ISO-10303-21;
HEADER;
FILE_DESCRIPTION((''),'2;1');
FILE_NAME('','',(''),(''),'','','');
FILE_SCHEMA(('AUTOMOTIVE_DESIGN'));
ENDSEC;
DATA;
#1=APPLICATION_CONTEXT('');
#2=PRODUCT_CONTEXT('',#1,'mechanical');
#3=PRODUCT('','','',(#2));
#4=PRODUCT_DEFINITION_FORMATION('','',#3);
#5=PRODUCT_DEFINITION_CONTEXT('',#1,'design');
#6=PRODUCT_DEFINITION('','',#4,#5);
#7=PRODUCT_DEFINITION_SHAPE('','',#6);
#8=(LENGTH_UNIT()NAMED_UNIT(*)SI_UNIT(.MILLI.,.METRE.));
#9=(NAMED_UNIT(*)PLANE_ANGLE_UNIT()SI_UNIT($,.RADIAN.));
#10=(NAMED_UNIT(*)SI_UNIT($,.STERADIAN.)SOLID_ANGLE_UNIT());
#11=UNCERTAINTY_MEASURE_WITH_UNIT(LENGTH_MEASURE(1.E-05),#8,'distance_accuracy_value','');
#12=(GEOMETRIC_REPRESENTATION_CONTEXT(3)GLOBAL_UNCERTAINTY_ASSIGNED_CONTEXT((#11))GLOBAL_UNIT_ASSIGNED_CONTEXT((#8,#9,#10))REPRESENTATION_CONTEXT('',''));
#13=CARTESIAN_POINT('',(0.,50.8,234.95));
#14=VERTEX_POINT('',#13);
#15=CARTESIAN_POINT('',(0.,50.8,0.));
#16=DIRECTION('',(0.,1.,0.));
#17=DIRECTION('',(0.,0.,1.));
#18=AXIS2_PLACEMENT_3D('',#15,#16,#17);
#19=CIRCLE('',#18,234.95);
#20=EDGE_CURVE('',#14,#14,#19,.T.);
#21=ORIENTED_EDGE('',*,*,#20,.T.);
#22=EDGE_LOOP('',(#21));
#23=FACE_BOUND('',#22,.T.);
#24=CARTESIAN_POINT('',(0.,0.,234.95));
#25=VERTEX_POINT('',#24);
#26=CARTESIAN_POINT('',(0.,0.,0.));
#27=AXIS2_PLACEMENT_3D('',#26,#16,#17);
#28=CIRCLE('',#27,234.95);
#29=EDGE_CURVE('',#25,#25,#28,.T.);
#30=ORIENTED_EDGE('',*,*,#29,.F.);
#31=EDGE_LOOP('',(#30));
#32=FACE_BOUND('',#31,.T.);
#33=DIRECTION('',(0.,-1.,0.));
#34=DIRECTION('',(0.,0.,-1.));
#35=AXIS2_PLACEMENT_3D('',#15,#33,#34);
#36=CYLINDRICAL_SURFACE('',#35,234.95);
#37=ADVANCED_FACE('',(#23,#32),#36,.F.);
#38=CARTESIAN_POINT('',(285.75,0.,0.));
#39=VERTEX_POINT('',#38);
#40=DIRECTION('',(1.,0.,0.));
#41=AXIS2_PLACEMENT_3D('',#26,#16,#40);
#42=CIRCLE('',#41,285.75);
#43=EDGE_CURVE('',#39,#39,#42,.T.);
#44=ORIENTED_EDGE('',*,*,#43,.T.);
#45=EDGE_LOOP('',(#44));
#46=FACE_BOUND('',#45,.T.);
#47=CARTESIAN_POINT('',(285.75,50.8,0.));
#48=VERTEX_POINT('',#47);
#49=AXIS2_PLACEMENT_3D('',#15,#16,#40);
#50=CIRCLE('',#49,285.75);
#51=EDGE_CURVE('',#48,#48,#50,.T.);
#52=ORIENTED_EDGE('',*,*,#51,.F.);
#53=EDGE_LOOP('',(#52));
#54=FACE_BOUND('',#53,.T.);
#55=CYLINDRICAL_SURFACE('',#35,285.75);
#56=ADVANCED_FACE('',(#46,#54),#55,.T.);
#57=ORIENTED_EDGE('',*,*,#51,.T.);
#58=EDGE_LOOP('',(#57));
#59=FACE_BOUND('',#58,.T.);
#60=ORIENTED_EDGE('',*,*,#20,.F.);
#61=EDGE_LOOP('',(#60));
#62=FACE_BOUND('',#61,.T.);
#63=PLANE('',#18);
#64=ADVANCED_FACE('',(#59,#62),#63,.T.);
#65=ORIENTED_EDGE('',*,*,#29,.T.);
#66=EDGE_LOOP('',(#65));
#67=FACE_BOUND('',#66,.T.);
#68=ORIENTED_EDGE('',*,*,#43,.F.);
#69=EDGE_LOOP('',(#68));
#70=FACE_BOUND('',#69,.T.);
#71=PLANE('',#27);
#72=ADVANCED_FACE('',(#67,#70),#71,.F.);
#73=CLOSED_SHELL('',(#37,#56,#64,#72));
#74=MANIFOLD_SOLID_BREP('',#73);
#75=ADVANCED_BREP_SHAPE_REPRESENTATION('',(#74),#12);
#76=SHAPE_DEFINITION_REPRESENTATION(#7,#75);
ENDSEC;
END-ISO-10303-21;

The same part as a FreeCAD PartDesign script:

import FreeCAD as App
import Part
import Sketcher
Q = App.Units.Quantity

doc = App.newDocument("Part")
body = doc.addObject("PartDesign::Body", "Body")

# Sketch on XZ plane
sketch1 = body.newObject("Sketcher::SketchObject", "Sketch")
sketch1.AttachmentSupport = (doc.getObject("XZ_Plane"), [""])
sketch1.MapMode = "FlatFace"
sketch1.addGeometry([
    Part.Circle(App.Vector(0, 0, 0), App.Vector(0, 0, 1), 286),
    Part.Circle(App.Vector(0, 0, 0), App.Vector(0, 0, 1), 235),
], False)
sketch1.addConstraint([
    Sketcher.Constraint("Coincident", 0, 3, -1, 1),
    Sketcher.Constraint("Coincident", 1, 3, -1, 1),
    Sketcher.Constraint("Diameter", 0, Q("22.5 in")),
    Sketcher.Constraint("Diameter", 1, Q("18.5 in")),
])
pad1 = body.newObject("PartDesign::Pad", "Pad")
pad1.Profile = sketch1
pad1.Length = Q("2 in")
pad1.Reversed = True

doc.recompute()
